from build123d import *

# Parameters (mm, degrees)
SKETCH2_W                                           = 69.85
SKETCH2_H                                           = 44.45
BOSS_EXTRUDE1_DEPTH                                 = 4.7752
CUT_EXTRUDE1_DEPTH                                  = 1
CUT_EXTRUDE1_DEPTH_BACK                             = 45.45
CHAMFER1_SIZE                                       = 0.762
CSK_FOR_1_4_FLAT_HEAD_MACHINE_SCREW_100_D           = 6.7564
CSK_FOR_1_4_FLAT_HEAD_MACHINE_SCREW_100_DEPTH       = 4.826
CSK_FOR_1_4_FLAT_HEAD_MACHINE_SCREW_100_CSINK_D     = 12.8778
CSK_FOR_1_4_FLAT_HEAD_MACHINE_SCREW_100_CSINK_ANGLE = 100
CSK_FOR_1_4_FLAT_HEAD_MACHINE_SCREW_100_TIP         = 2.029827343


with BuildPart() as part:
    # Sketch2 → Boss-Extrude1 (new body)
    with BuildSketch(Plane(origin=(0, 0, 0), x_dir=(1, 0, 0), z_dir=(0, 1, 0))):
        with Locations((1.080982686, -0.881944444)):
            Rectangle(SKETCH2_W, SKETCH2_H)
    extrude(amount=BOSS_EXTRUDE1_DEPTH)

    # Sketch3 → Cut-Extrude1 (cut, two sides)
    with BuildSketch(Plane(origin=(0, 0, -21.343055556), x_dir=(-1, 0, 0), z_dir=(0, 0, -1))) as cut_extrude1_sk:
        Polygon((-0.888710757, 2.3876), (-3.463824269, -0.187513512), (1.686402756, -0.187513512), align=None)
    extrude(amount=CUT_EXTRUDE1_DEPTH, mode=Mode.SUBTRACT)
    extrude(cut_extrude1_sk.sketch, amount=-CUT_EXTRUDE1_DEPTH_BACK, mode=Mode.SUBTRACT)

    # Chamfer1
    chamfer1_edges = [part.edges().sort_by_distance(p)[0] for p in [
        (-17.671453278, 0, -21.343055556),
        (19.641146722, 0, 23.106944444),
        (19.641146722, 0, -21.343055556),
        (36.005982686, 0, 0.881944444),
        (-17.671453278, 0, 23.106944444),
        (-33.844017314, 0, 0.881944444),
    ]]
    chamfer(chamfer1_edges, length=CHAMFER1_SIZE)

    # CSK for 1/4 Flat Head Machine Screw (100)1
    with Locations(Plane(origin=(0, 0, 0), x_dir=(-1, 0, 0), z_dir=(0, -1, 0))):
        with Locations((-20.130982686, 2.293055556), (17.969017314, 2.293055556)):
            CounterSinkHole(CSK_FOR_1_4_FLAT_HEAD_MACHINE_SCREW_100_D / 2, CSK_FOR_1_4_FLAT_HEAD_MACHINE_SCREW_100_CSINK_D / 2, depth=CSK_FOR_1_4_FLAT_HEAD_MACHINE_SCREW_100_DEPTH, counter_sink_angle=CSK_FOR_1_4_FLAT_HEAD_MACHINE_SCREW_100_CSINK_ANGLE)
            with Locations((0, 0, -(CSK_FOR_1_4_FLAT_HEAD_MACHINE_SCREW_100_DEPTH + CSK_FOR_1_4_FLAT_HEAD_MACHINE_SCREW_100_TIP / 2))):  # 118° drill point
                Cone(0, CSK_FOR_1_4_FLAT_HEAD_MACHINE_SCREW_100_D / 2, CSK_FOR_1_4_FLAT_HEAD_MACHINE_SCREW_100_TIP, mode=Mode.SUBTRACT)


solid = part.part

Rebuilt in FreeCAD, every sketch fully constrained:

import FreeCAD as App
import Part
import Sketcher
Q = App.Units.Quantity


def edges_at(feature, points):
    """Names of the edges that pass closest to the given points."""
    edges = feature.Shape.Edges
    near = lambda p: min(range(len(edges)), key=lambda i: edges[i].distToShape(Part.Vertex(*p))[0])
    return sorted({f"Edge{near(p) + 1}" for p in points})


def add_polygon(sketch, points):
    """Adds a closed chain of lines whose ends are joined by coincident constraints."""
    first, n = sketch.GeometryCount, len(points)
    for a, b in zip(points, points[1:] + points[:1]):
        sketch.addGeometry(Part.LineSegment(App.Vector(*a, 0), App.Vector(*b, 0)), False)
    for i in range(n):
        sketch.addConstraint(Sketcher.Constraint("Coincident", first + i, 2, first + (i + 1) % n, 1))

doc = App.newDocument("Part")
body = doc.addObject("PartDesign::Body", "Body")

# Sketch on XZ plane
sketch1 = doc.addObject("Sketcher::SketchObject", "Sketch")
body.addObject(sketch1)
sketch1.AttachmentSupport = (doc.XZ_Plane, [""])
sketch1.MapMode = "FlatFace"
add_polygon(sketch1, [(-33.844017, -21.343056), (-33.844017, 23.106944), (36.005983, 23.106944), (36.005983, -21.343056)])  # lines 0-3
sketch1.addConstraint(Sketcher.Constraint("Vertical", 0))
sketch1.addConstraint(Sketcher.Constraint("Horizontal", 1))
sketch1.addConstraint(Sketcher.Constraint("Vertical", 2))
sketch1.addConstraint(Sketcher.Constraint("Horizontal", 3))
sketch1.addConstraint(Sketcher.Constraint("DistanceX", 1, 1, 1, 2, Q("2.75 in")))
sketch1.addConstraint(Sketcher.Constraint("DistanceY", 0, 1, 0, 2, Q("1.75 in")))
sketch1.addConstraint(Sketcher.Constraint("DistanceX", 0, 2, -1, 1, Q("33.844017 mm")))
sketch1.addConstraint(Sketcher.Constraint("DistanceY", -1, 1, 0, 2, Q("23.106944 mm")))
pad1 = doc.addObject("PartDesign::Pad", "Pad")
body.addObject(pad1)
pad1.Profile = sketch1
pad1.Length = Q("0.188 in")
pad1.Reversed = True

# Sketch on XY plane
sketch2 = doc.addObject("Sketcher::SketchObject", "Sketch001")
body.addObject(sketch2)
sketch2.AttachmentSupport = (doc.XY_Plane, [""])
sketch2.MapMode = "FlatFace"
sketch2.AttachmentOffset = App.Placement(App.Vector(0, 0, -21.343056), App.Rotation())
add_polygon(sketch2, [(0.888711, 2.3876), (3.463824, -0.187514), (-1.686403, -0.187514)])  # lines 0-2
sketch2.addConstraint(Sketcher.Constraint("Horizontal", 1))
sketch2.addConstraint(Sketcher.Constraint("Perpendicular", 0, 2))
sketch2.addConstraint(Sketcher.Constraint("Equal", 0, 2))
sketch2.addConstraint(Sketcher.Constraint("DistanceY", -1, 1, 2, 2, Q("0.094 in")))
sketch2.addConstraint(Sketcher.Constraint("Distance", 0, Q("3.64176 mm")))
sketch2.addConstraint(Sketcher.Constraint("DistanceX", -1, 1, 2, 2, Q("0.888711 mm")))
pocket1 = doc.addObject("PartDesign::Pocket", "Pocket")
body.addObject(pocket1)
pocket1.Profile = sketch2
pocket1.Type = "ThroughAll"
pocket1.Midplane = True
doc.recompute()

chamfer = doc.addObject("PartDesign::Chamfer", "Chamfer")
body.addObject(chamfer)
chamfer.Base = (pocket1, edges_at(pocket1, [
    (-17.671, 0, -21.343),
    (19.641, 0, 23.107),
    (19.641, 0, -21.343),
    (36.006, 0, 0.882),
    (-17.671, 0, 23.107),
    (-33.844, 0, 0.882),
]))
chamfer.Size = Q("0.03 in")

# Sketch on XZ plane
sketch3 = doc.addObject("Sketcher::SketchObject", "Sketch002")
body.addObject(sketch3)
sketch3.AttachmentSupport = (doc.XZ_Plane, [""])
sketch3.MapMode = "FlatFace"
sketch3.addGeometry(Part.Circle(App.Vector(20.130983, -2.293056, 0), App.Vector(0, 0, 1), 3.3782), False)
sketch3.addGeometry(Part.Circle(App.Vector(-17.969017, -2.293056, 0), App.Vector(0, 0, 1), 3.3782), False)
sketch3.addConstraint(Sketcher.Constraint("Equal", 0, 1))
sketch3.addConstraint(Sketcher.Constraint("Horizontal", 0, 3, 1, 3))
sketch3.addConstraint(Sketcher.Constraint("Diameter", 0, Q("0.266 in")))
sketch3.addConstraint(Sketcher.Constraint("DistanceX", 1, 3, 0, 3, Q("1.5 in")))
sketch3.addConstraint(Sketcher.Constraint("DistanceX", -1, 1, 0, 3, Q("20.130983 mm")))
sketch3.addConstraint(Sketcher.Constraint("DistanceY", 0, 3, -1, 1, Q("2.293056 mm")))
doc.recompute()
hole = doc.addObject("PartDesign::Hole", "Hole")
body.addObject(hole)
hole.Profile = sketch3
hole.ThreadType = "None"
hole.Diameter = Q("0.266 in")
hole.DepthType = "Dimension"
hole.Depth = Q("0.19 in")
hole.DrillPoint = "Angled"
hole.DrillPointAngle = 118
hole.HoleCutType = "Countersink"
hole.HoleCutDiameter = Q("0.507 in")
hole.HoleCutCountersinkAngle = 100

doc.recompute()
